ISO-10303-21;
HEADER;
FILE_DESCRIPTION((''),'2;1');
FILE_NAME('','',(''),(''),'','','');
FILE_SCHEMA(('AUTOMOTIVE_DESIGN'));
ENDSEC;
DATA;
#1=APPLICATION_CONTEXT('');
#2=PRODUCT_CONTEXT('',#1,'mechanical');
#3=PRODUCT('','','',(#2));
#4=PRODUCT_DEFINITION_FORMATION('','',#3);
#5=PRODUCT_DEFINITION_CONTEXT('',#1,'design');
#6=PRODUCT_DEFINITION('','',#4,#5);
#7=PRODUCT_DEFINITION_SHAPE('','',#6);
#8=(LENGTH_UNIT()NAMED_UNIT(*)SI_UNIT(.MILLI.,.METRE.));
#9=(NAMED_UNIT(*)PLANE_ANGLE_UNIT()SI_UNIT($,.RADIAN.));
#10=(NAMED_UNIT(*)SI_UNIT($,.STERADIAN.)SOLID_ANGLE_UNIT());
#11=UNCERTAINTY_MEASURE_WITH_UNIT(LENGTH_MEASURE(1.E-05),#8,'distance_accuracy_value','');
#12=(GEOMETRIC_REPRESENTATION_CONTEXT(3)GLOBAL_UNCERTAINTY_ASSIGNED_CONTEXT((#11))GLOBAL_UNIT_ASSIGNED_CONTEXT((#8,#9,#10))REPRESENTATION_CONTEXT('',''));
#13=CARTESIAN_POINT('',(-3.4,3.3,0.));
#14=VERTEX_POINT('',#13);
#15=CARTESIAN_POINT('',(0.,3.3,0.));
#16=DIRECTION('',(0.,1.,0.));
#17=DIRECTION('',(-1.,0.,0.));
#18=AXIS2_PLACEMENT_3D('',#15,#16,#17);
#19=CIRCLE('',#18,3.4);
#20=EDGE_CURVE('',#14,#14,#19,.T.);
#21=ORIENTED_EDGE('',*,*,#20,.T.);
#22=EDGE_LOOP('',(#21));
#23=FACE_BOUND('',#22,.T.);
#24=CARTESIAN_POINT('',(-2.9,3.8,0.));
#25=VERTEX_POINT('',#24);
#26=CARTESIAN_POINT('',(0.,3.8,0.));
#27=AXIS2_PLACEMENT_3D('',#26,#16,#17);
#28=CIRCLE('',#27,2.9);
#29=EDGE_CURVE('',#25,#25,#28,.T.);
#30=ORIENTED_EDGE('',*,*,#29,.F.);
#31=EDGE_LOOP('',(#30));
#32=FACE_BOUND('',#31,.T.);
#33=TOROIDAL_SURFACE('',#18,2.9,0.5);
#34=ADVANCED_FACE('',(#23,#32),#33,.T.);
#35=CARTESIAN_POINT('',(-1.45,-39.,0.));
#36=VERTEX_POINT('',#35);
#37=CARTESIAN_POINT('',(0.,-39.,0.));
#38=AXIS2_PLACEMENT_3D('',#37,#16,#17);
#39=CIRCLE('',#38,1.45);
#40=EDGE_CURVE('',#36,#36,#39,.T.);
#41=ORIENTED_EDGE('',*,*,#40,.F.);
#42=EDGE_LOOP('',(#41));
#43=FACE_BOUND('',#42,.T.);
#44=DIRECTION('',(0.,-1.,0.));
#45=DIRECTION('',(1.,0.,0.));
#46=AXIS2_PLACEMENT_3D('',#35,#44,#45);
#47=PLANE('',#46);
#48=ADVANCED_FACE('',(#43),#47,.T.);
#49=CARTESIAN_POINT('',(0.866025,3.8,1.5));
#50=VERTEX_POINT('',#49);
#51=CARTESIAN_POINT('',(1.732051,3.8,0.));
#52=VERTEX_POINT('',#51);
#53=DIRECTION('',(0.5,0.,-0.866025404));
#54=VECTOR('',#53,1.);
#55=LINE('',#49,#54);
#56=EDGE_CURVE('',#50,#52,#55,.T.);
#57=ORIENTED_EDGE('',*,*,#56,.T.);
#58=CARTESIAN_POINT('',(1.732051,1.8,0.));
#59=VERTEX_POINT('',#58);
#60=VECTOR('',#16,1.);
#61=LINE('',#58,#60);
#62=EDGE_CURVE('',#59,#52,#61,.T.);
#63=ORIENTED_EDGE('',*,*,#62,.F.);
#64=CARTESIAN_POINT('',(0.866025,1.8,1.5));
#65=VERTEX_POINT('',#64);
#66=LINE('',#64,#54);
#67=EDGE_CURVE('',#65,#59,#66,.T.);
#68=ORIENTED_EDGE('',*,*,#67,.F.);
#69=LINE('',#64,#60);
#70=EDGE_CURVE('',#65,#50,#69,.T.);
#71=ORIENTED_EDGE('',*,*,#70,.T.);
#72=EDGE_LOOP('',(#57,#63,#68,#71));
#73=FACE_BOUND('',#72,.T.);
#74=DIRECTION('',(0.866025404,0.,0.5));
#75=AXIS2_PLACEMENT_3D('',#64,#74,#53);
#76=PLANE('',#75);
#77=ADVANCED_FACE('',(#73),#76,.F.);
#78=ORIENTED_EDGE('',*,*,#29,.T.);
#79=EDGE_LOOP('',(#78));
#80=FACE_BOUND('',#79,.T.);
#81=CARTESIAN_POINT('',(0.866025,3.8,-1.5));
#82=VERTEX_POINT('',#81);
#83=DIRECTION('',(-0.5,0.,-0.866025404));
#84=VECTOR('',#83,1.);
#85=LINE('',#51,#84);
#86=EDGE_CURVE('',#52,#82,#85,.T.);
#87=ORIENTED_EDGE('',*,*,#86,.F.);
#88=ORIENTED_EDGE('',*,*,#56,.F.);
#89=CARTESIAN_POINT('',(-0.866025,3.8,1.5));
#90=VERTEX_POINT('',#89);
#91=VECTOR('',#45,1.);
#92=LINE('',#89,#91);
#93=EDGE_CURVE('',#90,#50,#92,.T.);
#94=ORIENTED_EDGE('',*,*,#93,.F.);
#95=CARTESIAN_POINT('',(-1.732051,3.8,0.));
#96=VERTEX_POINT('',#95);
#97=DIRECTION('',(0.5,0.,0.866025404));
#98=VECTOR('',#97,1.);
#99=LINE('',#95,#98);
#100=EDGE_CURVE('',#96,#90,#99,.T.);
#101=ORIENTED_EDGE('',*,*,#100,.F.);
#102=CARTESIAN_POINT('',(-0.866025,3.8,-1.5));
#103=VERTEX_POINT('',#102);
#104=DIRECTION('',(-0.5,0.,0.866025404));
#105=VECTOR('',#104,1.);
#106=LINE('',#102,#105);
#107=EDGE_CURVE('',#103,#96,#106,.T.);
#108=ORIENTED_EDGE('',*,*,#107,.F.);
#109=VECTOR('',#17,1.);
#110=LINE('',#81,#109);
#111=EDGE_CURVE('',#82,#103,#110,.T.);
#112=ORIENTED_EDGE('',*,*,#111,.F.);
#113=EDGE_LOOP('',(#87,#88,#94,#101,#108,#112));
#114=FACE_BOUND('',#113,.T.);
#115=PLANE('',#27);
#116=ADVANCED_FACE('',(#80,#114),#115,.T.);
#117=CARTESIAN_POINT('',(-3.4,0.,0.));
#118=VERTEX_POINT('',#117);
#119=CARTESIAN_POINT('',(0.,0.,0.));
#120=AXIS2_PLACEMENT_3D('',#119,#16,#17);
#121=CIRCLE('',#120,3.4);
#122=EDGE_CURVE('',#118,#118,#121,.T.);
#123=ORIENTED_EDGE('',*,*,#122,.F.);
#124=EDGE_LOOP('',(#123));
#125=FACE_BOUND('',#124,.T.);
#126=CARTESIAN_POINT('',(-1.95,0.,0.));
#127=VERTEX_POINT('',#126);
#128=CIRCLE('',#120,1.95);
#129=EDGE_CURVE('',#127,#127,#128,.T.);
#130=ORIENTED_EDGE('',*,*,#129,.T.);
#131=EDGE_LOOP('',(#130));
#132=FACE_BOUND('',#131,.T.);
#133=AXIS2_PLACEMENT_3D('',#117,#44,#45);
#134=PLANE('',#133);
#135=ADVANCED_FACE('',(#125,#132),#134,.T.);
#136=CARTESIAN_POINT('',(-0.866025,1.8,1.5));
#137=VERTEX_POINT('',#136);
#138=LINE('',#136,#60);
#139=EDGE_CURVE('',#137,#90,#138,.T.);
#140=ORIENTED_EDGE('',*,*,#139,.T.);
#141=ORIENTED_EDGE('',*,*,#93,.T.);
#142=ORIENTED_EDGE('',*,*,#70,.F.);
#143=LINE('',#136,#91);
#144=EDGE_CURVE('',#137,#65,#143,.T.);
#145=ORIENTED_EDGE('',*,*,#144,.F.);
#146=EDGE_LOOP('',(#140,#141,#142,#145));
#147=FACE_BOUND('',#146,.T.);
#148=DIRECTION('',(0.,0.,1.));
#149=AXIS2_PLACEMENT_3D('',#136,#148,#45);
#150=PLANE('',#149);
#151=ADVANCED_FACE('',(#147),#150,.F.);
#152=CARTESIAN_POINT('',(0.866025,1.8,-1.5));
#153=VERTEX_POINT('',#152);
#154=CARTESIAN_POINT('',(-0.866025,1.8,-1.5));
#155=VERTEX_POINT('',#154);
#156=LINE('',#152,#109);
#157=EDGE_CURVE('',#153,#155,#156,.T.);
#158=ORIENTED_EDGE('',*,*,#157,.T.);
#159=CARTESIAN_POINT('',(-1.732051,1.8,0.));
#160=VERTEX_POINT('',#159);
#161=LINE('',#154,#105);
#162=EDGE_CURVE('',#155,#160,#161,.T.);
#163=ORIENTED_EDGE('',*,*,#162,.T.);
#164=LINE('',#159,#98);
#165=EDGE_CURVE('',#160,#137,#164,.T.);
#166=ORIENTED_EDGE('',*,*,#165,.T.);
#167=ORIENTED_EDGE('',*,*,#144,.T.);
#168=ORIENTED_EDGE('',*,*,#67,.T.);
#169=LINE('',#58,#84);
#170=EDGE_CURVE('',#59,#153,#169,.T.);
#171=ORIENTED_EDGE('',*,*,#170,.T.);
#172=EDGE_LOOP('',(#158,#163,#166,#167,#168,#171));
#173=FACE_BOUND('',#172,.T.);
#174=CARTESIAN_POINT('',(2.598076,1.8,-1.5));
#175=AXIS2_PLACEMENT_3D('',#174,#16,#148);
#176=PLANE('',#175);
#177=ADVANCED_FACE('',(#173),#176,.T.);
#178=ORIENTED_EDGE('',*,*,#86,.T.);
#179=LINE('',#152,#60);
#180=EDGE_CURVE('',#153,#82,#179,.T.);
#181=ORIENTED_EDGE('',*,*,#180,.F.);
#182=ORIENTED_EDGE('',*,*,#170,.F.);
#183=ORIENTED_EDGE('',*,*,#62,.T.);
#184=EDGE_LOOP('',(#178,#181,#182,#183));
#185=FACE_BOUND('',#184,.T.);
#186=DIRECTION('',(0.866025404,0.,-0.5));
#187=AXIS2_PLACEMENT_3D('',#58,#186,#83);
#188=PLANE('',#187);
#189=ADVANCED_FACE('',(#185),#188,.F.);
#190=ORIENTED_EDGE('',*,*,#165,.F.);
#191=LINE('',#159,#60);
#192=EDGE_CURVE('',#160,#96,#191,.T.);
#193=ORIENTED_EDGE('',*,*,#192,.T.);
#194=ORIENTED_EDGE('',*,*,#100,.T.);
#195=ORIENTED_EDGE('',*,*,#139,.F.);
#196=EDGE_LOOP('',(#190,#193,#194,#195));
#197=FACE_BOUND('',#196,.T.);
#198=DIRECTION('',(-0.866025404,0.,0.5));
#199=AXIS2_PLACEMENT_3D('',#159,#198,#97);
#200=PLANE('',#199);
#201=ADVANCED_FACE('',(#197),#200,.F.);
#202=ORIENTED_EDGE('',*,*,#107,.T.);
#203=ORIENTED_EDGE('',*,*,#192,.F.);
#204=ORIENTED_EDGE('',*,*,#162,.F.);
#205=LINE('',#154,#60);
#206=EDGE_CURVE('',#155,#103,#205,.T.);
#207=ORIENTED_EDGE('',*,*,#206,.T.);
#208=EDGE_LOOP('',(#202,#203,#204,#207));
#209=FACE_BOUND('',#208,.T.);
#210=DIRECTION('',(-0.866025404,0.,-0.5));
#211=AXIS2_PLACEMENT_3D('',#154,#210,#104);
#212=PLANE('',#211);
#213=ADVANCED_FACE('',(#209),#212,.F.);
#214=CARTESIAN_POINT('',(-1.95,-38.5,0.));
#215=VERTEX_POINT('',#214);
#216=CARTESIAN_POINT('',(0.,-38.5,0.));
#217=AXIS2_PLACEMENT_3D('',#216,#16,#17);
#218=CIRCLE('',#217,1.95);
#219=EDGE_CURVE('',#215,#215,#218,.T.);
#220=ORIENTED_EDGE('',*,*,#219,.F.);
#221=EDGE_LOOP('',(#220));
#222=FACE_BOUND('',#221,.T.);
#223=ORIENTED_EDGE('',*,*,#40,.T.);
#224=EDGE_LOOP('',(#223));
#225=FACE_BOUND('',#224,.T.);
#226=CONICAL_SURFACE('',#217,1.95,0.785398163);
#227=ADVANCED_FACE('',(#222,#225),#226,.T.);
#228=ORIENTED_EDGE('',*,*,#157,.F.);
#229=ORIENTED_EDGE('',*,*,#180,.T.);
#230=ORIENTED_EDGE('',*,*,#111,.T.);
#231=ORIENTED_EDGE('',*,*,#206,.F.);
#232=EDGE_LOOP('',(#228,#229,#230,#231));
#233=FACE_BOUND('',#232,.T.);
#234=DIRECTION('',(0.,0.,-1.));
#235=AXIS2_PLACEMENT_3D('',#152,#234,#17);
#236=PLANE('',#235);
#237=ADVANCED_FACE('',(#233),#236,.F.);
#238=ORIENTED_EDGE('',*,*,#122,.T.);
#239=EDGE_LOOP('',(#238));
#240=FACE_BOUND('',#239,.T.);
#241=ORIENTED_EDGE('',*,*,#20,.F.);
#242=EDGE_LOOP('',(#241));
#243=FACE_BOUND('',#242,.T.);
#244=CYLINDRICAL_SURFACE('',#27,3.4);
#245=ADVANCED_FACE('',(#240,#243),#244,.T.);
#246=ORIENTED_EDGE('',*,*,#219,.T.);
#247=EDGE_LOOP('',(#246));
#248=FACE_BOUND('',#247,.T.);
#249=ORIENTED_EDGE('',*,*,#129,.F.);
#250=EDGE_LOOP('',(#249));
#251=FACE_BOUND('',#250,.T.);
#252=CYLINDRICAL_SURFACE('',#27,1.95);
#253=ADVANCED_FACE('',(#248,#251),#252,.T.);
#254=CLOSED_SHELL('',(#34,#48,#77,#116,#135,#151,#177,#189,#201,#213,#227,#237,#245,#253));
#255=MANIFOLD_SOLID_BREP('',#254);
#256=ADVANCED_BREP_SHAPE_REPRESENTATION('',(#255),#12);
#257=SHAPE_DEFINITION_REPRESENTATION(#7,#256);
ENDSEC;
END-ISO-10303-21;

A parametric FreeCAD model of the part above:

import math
import FreeCAD as App
import Part
import Sketcher
from FreeCAD import Vector
Q = App.Units.Quantity

doc = App.newDocument("Part")
body = doc.addObject("PartDesign::Body", "Body")

sketch1 = body.newObject("Sketcher::SketchObject", "Sketch")
sketch1.AttachmentSupport = (doc.getObject("XY_Plane"), [""])
sketch1.MapMode = "FlatFace"
sketch1.addGeometry([
    Part.LineSegment(Vector(0, 3.8, 0), Vector(-2.9, 3.8, 0)),
    Part.ArcOfCircle(Part.Circle(Vector(-2.9, 3.3, 0), Vector(0, 0, 1), 0.5), math.radians(90), math.radians(180)),
    Part.LineSegment(Vector(-3.4, 3.3, 0), Vector(-3.4, 0, 0)),
    Part.LineSegment(Vector(-3.4, 0, 0), Vector(-1.95, 0, 0)),
    Part.LineSegment(Vector(-1.95, 0, 0), Vector(-1.95, -38.5, 0)),
    Part.LineSegment(Vector(-1.95, -38.5, 0), Vector(-1.45, -39, 0)),
    Part.LineSegment(Vector(-1.45, -39, 0), Vector(0, -39, 0)),
    Part.LineSegment(Vector(0, -39, 0), Vector(0, 3.8, 0)),
], False)
sketch1.addConstraint([
    Sketcher.Constraint("Tangent", 0, 2, 1, 1),
    Sketcher.Constraint("Tangent", 1, 2, 2, 1),
    Sketcher.Constraint("Coincident", 2, 2, 3, 1),
    Sketcher.Constraint("Coincident", 3, 2, 4, 1),
    Sketcher.Constraint("Coincident", 4, 2, 5, 1),
    Sketcher.Constraint("Coincident", 5, 2, 6, 1),
    Sketcher.Constraint("Coincident", 6, 2, 7, 1),
    Sketcher.Constraint("Coincident", 7, 2, 0, 1),
    Sketcher.Constraint("Horizontal", 0),
    Sketcher.Constraint("Vertical", 2),
    Sketcher.Constraint("Horizontal", 3),
    Sketcher.Constraint("Vertical", 4),
    Sketcher.Constraint("Horizontal", 6),
    Sketcher.Constraint("Vertical", 7),
    Sketcher.Constraint("PointOnObject", 2, 2, -1),
    Sketcher.Constraint("PointOnObject", 6, 2, -2),
    Sketcher.Constraint("Equal", 3, 6),
    Sketcher.Constraint("Radius", 1, 0.5),
    Sketcher.Constraint("Angle", 5, Q("-45 deg")),
    Sketcher.Constraint("DistanceX", 0, 2, 0, 1, 2.9),
    Sketcher.Constraint("DistanceY", 2, 2, 2, 1, 3.3),
    Sketcher.Constraint("DistanceY", 4, 2, 4, 1, 38.5),
    Sketcher.Constraint("DistanceY", 7, 1, 7, 2, 42.8),
])
revolution = body.newObject("PartDesign::Revolution", "Revolution")
revolution.Profile = sketch1
revolution.ReferenceAxis = (sketch1, ["V_Axis"])
revolution.Angle = 360

sketch2 = body.newObject("Sketcher::SketchObject", "Sketch001")
sketch2.AttachmentSupport = (doc.getObject("XZ_Plane"), [""])
sketch2.MapMode = "FlatFace"
sketch2.AttachmentOffset = App.Placement(Vector(0, 0, -3.8), App.Rotation())
sketch2.addGeometry([
    Part.LineSegment(Vector(1.7, 0, 0), Vector(0.9, -1.5, 0)),
    Part.LineSegment(Vector(0.9, -1.5, 0), Vector(-0.9, -1.5, 0)),
    Part.LineSegment(Vector(-0.9, -1.5, 0), Vector(-1.7, 0, 0)),
    Part.LineSegment(Vector(-1.7, 0, 0), Vector(-0.9, 1.5, 0)),
    Part.LineSegment(Vector(-0.9, 1.5, 0), Vector(0.9, 1.5, 0)),
    Part.LineSegment(Vector(0.9, 1.5, 0), Vector(1.7, 0, 0)),
], False)
sketch2.addConstraint([
    Sketcher.Constraint("Coincident", 0, 2, 1, 1),
    Sketcher.Constraint("Coincident", 1, 2, 2, 1),
    Sketcher.Constraint("Coincident", 2, 2, 3, 1),
    Sketcher.Constraint("Coincident", 3, 2, 4, 1),
    Sketcher.Constraint("Coincident", 4, 2, 5, 1),
    Sketcher.Constraint("Coincident", 5, 2, 0, 1),
    Sketcher.Constraint("Horizontal", 1),
    Sketcher.Constraint("Horizontal", 4),
    Sketcher.Constraint("Symmetric", 0, 2, 3, 2, -1, 1),
    Sketcher.Constraint("Symmetric", 2, 2, 5, 2, -1, 1),
    Sketcher.Constraint("PointOnObject", 2, 2, -1),
    Sketcher.Constraint("Parallel", 2, 5),
    Sketcher.Constraint("Vertical", 1, 2, 3, 2),
    Sketcher.Constraint("Angle", 0, Q("-120 deg")),
    Sketcher.Constraint("DistanceY", 1, 2, 3, 2, 3.0),
    Sketcher.Constraint("DistanceX", 1, 2, 1, 1, 1.732051),
])
pocket1 = body.newObject("PartDesign::Pocket", "Pocket")
pocket1.Profile = sketch2
pocket1.Length = 2
pocket1.Reversed = True

doc.recompute()
